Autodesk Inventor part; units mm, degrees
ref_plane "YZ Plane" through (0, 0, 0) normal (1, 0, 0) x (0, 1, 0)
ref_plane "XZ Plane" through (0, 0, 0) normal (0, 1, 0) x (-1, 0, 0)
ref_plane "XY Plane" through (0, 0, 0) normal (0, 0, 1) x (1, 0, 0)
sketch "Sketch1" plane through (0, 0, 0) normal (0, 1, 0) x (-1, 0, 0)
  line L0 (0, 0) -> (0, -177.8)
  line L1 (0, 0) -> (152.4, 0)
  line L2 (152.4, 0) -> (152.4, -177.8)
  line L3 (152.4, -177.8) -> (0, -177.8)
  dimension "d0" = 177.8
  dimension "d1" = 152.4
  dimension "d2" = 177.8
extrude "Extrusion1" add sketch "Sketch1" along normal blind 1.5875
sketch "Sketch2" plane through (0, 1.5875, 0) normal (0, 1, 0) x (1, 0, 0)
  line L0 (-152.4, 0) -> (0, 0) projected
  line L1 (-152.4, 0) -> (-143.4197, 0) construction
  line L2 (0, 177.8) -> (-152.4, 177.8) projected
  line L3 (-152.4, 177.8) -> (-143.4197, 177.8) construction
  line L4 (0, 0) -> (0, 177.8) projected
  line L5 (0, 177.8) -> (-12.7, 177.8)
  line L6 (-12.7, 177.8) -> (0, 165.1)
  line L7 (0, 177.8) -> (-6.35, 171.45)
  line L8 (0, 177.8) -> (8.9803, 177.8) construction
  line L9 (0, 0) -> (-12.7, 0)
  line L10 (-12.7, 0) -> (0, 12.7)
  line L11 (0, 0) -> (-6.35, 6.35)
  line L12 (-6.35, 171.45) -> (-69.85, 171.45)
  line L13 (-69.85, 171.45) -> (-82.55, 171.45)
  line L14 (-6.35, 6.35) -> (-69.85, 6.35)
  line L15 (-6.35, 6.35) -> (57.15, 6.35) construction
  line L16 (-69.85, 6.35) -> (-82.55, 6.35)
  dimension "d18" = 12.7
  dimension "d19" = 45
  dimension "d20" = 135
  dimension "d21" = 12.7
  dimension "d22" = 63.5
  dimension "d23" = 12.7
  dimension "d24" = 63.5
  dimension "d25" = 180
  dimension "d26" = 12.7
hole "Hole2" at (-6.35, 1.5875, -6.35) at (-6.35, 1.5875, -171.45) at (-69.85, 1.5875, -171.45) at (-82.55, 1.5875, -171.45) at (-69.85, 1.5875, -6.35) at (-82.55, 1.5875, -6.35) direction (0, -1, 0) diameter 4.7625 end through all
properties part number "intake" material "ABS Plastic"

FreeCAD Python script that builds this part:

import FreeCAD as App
import Part
import Sketcher
Q = App.Units.Quantity

doc = App.newDocument("Part")
body = doc.addObject("PartDesign::Body", "Body")

# Sketch on XZ plane
sketch1 = doc.addObject("Sketcher::SketchObject", "Sketch")
body.addObject(sketch1)
sketch1.AttachmentSupport = (doc.XZ_Plane, [""])
sketch1.MapMode = "FlatFace"
sketch1.addGeometry([
    Part.LineSegment(App.Vector(-152, 0, 0), App.Vector(0, 0, 0)),
    Part.LineSegment(App.Vector(0, 0, 0), App.Vector(0, -178, 0)),
    Part.LineSegment(App.Vector(0, -178, 0), App.Vector(-152, -178, 0)),
    Part.LineSegment(App.Vector(-152, -178, 0), App.Vector(-152, 0, 0)),
], False)
sketch1.addConstraint([
    Sketcher.Constraint("Coincident", 0, 2, 1, 1),
    Sketcher.Constraint("Coincident", 1, 2, 2, 1),
    Sketcher.Constraint("Coincident", 2, 2, 3, 1),
    Sketcher.Constraint("Coincident", 3, 2, 0, 1),
    Sketcher.Constraint("Horizontal", 0),
    Sketcher.Constraint("Vertical", 1),
    Sketcher.Constraint("Horizontal", 2),
    Sketcher.Constraint("Vertical", 3),
    Sketcher.Constraint("Coincident", 0, 2, -1, 1),
    Sketcher.Constraint("DistanceX", 0, 1, 0, 2, Q("6 in")),
    Sketcher.Constraint("DistanceY", 1, 2, 1, 1, Q("7 in")),
])
pad1 = doc.addObject("PartDesign::Pad", "Pad")
body.addObject(pad1)
pad1.Profile = sketch1
pad1.Length = Q("0.0625 in")
pad1.Reversed = True

# Sketch on XZ plane
sketch2 = doc.addObject("Sketcher::SketchObject", "Sketch001")
body.addObject(sketch2)
sketch2.AttachmentSupport = (doc.XZ_Plane, [""])
sketch2.MapMode = "FlatFace"
sketch2.AttachmentOffset = App.Placement(App.Vector(0, 0, -0.0625 * 25.4), App.Rotation())
sketch2.addGeometry([
    Part.Circle(App.Vector(-6.3, -6.3, 0), App.Vector(0, 0, 1), 2.4),  # 0
    Part.Circle(App.Vector(-6.3, -171.4, 0), App.Vector(0, 0, 1), 2.4),  # 1
    Part.Circle(App.Vector(-69.8, -171.4, 0), App.Vector(0, 0, 1), 2.4),  # 2
    Part.Circle(App.Vector(-82.5, -171.4, 0), App.Vector(0, 0, 1), 2.4),  # 3
    Part.Circle(App.Vector(-69.8, -6.3, 0), App.Vector(0, 0, 1), 2.4),  # 4
    Part.Circle(App.Vector(-82.5, -6.3, 0), App.Vector(0, 0, 1), 2.4),  # 5
], False)
sketch2.addConstraint([
    Sketcher.Constraint("Equal", 0, 1),
    Sketcher.Constraint("Equal", 1, 2),
    Sketcher.Constraint("Equal", 2, 3),
    Sketcher.Constraint("Equal", 3, 4),
    Sketcher.Constraint("Equal", 4, 5),
    Sketcher.Constraint("Horizontal", 1, 3, 2, 3),
    Sketcher.Constraint("Horizontal", 2, 3, 3, 3),
    Sketcher.Constraint("Horizontal", 0, 3, 4, 3),
    Sketcher.Constraint("Horizontal", 4, 3, 5, 3),
    Sketcher.Constraint("Vertical", 0, 3, 1, 3),
    Sketcher.Constraint("Vertical", 2, 3, 4, 3),
    Sketcher.Constraint("Vertical", 3, 3, 5, 3),
    Sketcher.Constraint("Diameter", 0, Q("0.1875 in")),
    Sketcher.Constraint("DistanceX", 3, 3, 1, 3, Q("3 in")),
    Sketcher.Constraint("DistanceY", 1, 3, 0, 3, Q("6.5 in")),
    Sketcher.Constraint("DistanceX", 2, 3, 1, 3, Q("2.5 in")),
    Sketcher.Constraint("DistanceX", 0, 3, -1, 1, Q("0.25 in")),
    Sketcher.Constraint("DistanceY", 0, 3, -1, 1, Q("0.25 in")),
])
doc.recompute()
hole = doc.addObject("PartDesign::Hole", "Hole")
body.addObject(hole)
hole.Profile = sketch2
hole.ThreadType = "None"
hole.Diameter = Q("0.1875 in")
hole.DepthType = "ThroughAll"
hole.Reversed = True

doc.recompute()
